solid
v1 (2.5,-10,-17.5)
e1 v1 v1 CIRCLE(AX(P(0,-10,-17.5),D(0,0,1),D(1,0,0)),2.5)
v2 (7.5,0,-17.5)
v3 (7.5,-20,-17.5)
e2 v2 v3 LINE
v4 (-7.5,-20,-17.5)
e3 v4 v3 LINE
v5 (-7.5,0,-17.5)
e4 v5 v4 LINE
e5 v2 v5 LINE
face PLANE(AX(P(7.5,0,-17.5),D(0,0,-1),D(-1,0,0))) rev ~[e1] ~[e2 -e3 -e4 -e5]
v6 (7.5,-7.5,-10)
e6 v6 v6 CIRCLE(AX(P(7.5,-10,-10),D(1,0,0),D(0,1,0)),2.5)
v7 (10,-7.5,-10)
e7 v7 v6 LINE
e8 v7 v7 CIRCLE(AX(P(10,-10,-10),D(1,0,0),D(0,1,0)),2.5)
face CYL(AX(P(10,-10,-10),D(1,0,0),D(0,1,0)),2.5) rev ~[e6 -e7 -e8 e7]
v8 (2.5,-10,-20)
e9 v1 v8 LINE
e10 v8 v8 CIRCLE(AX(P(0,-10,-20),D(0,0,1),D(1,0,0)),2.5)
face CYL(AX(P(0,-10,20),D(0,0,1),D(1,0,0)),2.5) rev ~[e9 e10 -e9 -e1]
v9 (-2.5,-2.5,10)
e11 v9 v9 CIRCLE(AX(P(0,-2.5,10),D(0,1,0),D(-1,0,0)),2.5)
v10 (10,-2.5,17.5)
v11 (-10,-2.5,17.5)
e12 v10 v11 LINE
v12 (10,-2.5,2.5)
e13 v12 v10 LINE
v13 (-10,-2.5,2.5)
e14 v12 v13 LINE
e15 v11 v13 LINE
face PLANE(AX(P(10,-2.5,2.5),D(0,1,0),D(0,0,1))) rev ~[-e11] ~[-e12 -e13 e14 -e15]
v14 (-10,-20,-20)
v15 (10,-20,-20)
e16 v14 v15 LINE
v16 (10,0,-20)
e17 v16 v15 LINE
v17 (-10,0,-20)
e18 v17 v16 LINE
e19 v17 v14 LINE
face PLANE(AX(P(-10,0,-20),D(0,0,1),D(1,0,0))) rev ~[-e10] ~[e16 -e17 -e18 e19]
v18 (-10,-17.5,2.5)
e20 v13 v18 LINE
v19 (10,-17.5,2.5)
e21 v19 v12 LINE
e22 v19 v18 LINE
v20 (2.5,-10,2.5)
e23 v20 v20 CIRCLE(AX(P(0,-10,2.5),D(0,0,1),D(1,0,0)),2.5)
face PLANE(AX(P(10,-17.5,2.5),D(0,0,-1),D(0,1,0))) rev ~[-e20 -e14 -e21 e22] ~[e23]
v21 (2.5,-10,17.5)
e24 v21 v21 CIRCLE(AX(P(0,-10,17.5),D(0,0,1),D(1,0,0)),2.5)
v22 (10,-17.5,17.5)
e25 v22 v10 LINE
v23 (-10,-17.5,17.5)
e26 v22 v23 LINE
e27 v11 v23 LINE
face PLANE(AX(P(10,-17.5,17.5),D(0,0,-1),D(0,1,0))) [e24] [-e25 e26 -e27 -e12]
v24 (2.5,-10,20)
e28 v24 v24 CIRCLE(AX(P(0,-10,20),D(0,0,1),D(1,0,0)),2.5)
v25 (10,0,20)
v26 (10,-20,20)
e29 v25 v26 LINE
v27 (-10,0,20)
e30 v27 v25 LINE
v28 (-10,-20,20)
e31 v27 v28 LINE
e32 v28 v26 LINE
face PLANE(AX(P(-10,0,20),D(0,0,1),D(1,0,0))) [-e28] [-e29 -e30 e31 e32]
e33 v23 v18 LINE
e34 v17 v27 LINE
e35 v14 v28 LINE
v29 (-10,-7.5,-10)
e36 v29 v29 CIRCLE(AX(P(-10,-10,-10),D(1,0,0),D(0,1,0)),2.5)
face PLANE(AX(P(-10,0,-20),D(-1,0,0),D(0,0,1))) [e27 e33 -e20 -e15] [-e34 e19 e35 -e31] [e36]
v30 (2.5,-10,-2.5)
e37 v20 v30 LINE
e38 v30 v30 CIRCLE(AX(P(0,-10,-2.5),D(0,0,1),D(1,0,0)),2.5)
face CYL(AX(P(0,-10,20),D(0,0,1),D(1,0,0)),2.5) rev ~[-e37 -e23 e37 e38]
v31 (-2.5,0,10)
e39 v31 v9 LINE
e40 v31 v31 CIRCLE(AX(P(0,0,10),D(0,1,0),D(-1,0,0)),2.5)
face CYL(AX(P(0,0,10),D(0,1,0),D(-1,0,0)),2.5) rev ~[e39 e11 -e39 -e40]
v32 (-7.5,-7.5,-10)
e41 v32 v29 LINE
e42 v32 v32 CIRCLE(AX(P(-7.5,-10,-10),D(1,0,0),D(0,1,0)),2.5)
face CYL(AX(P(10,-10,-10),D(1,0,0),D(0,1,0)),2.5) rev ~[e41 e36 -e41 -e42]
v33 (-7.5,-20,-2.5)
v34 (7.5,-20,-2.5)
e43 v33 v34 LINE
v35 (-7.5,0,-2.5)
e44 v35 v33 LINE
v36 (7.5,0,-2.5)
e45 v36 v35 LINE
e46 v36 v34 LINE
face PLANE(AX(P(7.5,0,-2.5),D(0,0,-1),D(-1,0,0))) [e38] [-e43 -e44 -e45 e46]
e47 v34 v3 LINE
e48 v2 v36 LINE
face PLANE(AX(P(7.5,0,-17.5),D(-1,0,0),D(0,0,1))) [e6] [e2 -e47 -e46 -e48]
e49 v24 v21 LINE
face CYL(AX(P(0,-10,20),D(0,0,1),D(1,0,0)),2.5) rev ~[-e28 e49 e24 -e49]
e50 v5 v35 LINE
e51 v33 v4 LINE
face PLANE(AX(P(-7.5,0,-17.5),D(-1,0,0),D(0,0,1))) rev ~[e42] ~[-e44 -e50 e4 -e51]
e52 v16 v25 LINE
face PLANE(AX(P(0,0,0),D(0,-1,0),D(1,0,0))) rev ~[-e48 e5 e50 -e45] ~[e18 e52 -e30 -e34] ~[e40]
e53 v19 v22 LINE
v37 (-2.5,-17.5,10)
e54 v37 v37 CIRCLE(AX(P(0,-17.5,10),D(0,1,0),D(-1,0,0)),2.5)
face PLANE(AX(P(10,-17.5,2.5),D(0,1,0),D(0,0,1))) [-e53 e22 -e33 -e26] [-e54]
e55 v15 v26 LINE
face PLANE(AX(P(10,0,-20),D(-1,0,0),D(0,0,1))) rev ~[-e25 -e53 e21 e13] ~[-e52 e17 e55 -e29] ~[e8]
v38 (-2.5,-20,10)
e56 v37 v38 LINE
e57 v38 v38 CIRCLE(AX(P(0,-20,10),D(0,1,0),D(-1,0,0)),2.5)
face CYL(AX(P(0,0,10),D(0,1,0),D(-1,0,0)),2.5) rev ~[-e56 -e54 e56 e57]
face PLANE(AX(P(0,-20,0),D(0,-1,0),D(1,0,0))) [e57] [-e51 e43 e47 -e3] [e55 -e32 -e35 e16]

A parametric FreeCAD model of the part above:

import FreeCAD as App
import Part
import Sketcher


def add_polygon(sketch, points):
    """Adds a closed chain of lines whose ends are joined by coincident constraints."""
    first, n = sketch.GeometryCount, len(points)
    for a, b in zip(points, points[1:] + points[:1]):
        sketch.addGeometry(Part.LineSegment(App.Vector(*a, 0), App.Vector(*b, 0)), False)
    for i in range(n):
        sketch.addConstraint(Sketcher.Constraint("Coincident", first + i, 2, first + (i + 1) % n, 1))

doc = App.newDocument("Part")
params = doc.addObject("Spreadsheet::Sheet", "Params")
for row, (alias, value) in enumerate([
    ("sketch1_width", "20 mm"),
    ("sketch1_height", "40 mm"),
    ("pad1_length", "20 mm"),
    ("sketch2_diameter", "5 mm"),
    ("sketch2_width", "15 mm"),
    ("sketch3_diameter", "5 mm"),
    ("sketch3_width", "15 mm"),
    ("sketch4_diameter", "5 mm"),
], start=1):
    params.set(f"A{row}", alias)
    params.set(f"B{row}", "=" + value)
    params.setAlias(f"B{row}", alias)

body = doc.addObject("PartDesign::Body", "Body")

# Sketch on XZ plane
sketch1 = body.newObject("Sketcher::SketchObject", "Sketch")
sketch1.AttachmentSupport = (doc.getObject("XZ_Plane"), [""])
sketch1.MapMode = "FlatFace"
add_polygon(sketch1, [(-10, 20), (-10, -20), (10, -20), (10, 20)])  # lines 0-3
sketch1.addConstraint([
    Sketcher.Constraint("Vertical", 0),
    Sketcher.Constraint("Horizontal", 1),
    Sketcher.Constraint("Vertical", 2),
    Sketcher.Constraint("Horizontal", 3),
    Sketcher.Constraint("Symmetric", 0, 2, 2, 2, -1, 1),
    Sketcher.Constraint("DistanceX", 1, 1, 1, 2, 20.0),
    Sketcher.Constraint("DistanceY", 0, 2, 0, 1, 40.0),
])
sketch1.setExpression("Constraints[9]", "Params.sketch1_width")
sketch1.setExpression("Constraints[10]", "Params.sketch1_height")
pad1 = body.newObject("PartDesign::Pad", "Pad")
pad1.Profile = sketch1
pad1.setExpression("Length", "Params.pad1_length")

# Sketch on YZ plane
sketch2 = body.newObject("Sketcher::SketchObject", "Sketch001")
sketch2.AttachmentSupport = (doc.getObject("YZ_Plane"), [""])
sketch2.MapMode = "FlatFace"
sketch2.AttachmentOffset = App.Placement(App.Vector(0, 0, 10), App.Rotation())
add_polygon(sketch2, [(-17.5, 17.5), (-17.5, 2.5), (-2.5, 2.5), (-2.5, 17.5)])  # lines 0-3
sketch2.addGeometry(Part.Circle(App.Vector(-10, -10, 0), App.Vector(0, 0, 1), 2.5), False)  # 4
sketch2.addConstraint([
    Sketcher.Constraint("Vertical", 0),
    Sketcher.Constraint("Horizontal", 1),
    Sketcher.Constraint("Vertical", 2),
    Sketcher.Constraint("Horizontal", 3),
    Sketcher.Constraint("Equal", 3, 0),
    Sketcher.Constraint("Diameter", 4, 5.0),
    Sketcher.Constraint("DistanceX", 1, 1, 1, 2, 15.0),
    Sketcher.Constraint("DistanceX", 4, 3, -1, 1, 10.0),
    Sketcher.Constraint("DistanceY", 4, 3, -1, 1, 10.0),
    Sketcher.Constraint("DistanceX", 0, 2, -1, 1, 17.5),
    Sketcher.Constraint("DistanceY", -1, 1, 0, 2, 2.5),
])
sketch2.setExpression("Constraints[9]", "Params.sketch2_diameter")
sketch2.setExpression("Constraints[10]", "Params.sketch2_width")
pocket1 = body.newObject("PartDesign::Pocket", "Pocket")
pocket1.Profile = sketch2
pocket1.Type = "ThroughAll"

# Sketch on XZ plane
sketch3 = body.newObject("Sketcher::SketchObject", "Sketch002")
sketch3.AttachmentSupport = (doc.getObject("XZ_Plane"), [""])
sketch3.MapMode = "FlatFace"
add_polygon(sketch3, [(7.5, -2.5), (7.5, -17.5), (-7.5, -17.5), (-7.5, -2.5)])  # lines 0-3
sketch3.addGeometry(Part.Circle(App.Vector(0, 10, 0), App.Vector(0, 0, 1), 2.5), False)  # 4
sketch3.addConstraint([
    Sketcher.Constraint("Vertical", 0),
    Sketcher.Constraint("Horizontal", 1),
    Sketcher.Constraint("Vertical", 2),
    Sketcher.Constraint("Horizontal", 3),
    Sketcher.Constraint("PointOnObject", 4, 3, -2),
    Sketcher.Constraint("Equal", 3, 0),
    Sketcher.Constraint("Diameter", 4, 5.0),
    Sketcher.Constraint("DistanceX", 1, 2, 1, 1, 15.0),
    Sketcher.Constraint("DistanceY", -1, 1, 4, 3, 10.0),
    Sketcher.Constraint("DistanceX", -1, 1, 0, 2, 7.5),
    Sketcher.Constraint("DistanceY", 0, 2, -1, 1, 17.5),
])
sketch3.setExpression("Constraints[10]", "Params.sketch3_diameter")
sketch3.setExpression("Constraints[11]", "Params.sketch3_width")
pocket2 = body.newObject("PartDesign::Pocket", "Pocket001")
pocket2.Profile = sketch3
pocket2.Type = "ThroughAll"
pocket2.Reversed = True

# Sketch on XY plane
sketch4 = body.newObject("Sketcher::SketchObject", "Sketch003")
sketch4.AttachmentSupport = (doc.getObject("XY_Plane"), [""])
sketch4.MapMode = "FlatFace"
sketch4.AttachmentOffset = App.Placement(App.Vector(0, 0, 20), App.Rotation())
sketch4.addGeometry(Part.Circle(App.Vector(0, -10, 0), App.Vector(0, 0, 1), 2.5), False)
sketch4.addConstraint([
    Sketcher.Constraint("PointOnObject", 0, 3, -2),
    Sketcher.Constraint("Diameter", 0, 5.0),
    Sketcher.Constraint("DistanceY", 0, 3, -1, 1, 10.0),
])
sketch4.setExpression("Constraints[1]", "Params.sketch4_diameter")
pocket3 = body.newObject("PartDesign::Pocket", "Pocket002")
pocket3.Profile = sketch4
pocket3.Type = "ThroughAll"

doc.recompute()
